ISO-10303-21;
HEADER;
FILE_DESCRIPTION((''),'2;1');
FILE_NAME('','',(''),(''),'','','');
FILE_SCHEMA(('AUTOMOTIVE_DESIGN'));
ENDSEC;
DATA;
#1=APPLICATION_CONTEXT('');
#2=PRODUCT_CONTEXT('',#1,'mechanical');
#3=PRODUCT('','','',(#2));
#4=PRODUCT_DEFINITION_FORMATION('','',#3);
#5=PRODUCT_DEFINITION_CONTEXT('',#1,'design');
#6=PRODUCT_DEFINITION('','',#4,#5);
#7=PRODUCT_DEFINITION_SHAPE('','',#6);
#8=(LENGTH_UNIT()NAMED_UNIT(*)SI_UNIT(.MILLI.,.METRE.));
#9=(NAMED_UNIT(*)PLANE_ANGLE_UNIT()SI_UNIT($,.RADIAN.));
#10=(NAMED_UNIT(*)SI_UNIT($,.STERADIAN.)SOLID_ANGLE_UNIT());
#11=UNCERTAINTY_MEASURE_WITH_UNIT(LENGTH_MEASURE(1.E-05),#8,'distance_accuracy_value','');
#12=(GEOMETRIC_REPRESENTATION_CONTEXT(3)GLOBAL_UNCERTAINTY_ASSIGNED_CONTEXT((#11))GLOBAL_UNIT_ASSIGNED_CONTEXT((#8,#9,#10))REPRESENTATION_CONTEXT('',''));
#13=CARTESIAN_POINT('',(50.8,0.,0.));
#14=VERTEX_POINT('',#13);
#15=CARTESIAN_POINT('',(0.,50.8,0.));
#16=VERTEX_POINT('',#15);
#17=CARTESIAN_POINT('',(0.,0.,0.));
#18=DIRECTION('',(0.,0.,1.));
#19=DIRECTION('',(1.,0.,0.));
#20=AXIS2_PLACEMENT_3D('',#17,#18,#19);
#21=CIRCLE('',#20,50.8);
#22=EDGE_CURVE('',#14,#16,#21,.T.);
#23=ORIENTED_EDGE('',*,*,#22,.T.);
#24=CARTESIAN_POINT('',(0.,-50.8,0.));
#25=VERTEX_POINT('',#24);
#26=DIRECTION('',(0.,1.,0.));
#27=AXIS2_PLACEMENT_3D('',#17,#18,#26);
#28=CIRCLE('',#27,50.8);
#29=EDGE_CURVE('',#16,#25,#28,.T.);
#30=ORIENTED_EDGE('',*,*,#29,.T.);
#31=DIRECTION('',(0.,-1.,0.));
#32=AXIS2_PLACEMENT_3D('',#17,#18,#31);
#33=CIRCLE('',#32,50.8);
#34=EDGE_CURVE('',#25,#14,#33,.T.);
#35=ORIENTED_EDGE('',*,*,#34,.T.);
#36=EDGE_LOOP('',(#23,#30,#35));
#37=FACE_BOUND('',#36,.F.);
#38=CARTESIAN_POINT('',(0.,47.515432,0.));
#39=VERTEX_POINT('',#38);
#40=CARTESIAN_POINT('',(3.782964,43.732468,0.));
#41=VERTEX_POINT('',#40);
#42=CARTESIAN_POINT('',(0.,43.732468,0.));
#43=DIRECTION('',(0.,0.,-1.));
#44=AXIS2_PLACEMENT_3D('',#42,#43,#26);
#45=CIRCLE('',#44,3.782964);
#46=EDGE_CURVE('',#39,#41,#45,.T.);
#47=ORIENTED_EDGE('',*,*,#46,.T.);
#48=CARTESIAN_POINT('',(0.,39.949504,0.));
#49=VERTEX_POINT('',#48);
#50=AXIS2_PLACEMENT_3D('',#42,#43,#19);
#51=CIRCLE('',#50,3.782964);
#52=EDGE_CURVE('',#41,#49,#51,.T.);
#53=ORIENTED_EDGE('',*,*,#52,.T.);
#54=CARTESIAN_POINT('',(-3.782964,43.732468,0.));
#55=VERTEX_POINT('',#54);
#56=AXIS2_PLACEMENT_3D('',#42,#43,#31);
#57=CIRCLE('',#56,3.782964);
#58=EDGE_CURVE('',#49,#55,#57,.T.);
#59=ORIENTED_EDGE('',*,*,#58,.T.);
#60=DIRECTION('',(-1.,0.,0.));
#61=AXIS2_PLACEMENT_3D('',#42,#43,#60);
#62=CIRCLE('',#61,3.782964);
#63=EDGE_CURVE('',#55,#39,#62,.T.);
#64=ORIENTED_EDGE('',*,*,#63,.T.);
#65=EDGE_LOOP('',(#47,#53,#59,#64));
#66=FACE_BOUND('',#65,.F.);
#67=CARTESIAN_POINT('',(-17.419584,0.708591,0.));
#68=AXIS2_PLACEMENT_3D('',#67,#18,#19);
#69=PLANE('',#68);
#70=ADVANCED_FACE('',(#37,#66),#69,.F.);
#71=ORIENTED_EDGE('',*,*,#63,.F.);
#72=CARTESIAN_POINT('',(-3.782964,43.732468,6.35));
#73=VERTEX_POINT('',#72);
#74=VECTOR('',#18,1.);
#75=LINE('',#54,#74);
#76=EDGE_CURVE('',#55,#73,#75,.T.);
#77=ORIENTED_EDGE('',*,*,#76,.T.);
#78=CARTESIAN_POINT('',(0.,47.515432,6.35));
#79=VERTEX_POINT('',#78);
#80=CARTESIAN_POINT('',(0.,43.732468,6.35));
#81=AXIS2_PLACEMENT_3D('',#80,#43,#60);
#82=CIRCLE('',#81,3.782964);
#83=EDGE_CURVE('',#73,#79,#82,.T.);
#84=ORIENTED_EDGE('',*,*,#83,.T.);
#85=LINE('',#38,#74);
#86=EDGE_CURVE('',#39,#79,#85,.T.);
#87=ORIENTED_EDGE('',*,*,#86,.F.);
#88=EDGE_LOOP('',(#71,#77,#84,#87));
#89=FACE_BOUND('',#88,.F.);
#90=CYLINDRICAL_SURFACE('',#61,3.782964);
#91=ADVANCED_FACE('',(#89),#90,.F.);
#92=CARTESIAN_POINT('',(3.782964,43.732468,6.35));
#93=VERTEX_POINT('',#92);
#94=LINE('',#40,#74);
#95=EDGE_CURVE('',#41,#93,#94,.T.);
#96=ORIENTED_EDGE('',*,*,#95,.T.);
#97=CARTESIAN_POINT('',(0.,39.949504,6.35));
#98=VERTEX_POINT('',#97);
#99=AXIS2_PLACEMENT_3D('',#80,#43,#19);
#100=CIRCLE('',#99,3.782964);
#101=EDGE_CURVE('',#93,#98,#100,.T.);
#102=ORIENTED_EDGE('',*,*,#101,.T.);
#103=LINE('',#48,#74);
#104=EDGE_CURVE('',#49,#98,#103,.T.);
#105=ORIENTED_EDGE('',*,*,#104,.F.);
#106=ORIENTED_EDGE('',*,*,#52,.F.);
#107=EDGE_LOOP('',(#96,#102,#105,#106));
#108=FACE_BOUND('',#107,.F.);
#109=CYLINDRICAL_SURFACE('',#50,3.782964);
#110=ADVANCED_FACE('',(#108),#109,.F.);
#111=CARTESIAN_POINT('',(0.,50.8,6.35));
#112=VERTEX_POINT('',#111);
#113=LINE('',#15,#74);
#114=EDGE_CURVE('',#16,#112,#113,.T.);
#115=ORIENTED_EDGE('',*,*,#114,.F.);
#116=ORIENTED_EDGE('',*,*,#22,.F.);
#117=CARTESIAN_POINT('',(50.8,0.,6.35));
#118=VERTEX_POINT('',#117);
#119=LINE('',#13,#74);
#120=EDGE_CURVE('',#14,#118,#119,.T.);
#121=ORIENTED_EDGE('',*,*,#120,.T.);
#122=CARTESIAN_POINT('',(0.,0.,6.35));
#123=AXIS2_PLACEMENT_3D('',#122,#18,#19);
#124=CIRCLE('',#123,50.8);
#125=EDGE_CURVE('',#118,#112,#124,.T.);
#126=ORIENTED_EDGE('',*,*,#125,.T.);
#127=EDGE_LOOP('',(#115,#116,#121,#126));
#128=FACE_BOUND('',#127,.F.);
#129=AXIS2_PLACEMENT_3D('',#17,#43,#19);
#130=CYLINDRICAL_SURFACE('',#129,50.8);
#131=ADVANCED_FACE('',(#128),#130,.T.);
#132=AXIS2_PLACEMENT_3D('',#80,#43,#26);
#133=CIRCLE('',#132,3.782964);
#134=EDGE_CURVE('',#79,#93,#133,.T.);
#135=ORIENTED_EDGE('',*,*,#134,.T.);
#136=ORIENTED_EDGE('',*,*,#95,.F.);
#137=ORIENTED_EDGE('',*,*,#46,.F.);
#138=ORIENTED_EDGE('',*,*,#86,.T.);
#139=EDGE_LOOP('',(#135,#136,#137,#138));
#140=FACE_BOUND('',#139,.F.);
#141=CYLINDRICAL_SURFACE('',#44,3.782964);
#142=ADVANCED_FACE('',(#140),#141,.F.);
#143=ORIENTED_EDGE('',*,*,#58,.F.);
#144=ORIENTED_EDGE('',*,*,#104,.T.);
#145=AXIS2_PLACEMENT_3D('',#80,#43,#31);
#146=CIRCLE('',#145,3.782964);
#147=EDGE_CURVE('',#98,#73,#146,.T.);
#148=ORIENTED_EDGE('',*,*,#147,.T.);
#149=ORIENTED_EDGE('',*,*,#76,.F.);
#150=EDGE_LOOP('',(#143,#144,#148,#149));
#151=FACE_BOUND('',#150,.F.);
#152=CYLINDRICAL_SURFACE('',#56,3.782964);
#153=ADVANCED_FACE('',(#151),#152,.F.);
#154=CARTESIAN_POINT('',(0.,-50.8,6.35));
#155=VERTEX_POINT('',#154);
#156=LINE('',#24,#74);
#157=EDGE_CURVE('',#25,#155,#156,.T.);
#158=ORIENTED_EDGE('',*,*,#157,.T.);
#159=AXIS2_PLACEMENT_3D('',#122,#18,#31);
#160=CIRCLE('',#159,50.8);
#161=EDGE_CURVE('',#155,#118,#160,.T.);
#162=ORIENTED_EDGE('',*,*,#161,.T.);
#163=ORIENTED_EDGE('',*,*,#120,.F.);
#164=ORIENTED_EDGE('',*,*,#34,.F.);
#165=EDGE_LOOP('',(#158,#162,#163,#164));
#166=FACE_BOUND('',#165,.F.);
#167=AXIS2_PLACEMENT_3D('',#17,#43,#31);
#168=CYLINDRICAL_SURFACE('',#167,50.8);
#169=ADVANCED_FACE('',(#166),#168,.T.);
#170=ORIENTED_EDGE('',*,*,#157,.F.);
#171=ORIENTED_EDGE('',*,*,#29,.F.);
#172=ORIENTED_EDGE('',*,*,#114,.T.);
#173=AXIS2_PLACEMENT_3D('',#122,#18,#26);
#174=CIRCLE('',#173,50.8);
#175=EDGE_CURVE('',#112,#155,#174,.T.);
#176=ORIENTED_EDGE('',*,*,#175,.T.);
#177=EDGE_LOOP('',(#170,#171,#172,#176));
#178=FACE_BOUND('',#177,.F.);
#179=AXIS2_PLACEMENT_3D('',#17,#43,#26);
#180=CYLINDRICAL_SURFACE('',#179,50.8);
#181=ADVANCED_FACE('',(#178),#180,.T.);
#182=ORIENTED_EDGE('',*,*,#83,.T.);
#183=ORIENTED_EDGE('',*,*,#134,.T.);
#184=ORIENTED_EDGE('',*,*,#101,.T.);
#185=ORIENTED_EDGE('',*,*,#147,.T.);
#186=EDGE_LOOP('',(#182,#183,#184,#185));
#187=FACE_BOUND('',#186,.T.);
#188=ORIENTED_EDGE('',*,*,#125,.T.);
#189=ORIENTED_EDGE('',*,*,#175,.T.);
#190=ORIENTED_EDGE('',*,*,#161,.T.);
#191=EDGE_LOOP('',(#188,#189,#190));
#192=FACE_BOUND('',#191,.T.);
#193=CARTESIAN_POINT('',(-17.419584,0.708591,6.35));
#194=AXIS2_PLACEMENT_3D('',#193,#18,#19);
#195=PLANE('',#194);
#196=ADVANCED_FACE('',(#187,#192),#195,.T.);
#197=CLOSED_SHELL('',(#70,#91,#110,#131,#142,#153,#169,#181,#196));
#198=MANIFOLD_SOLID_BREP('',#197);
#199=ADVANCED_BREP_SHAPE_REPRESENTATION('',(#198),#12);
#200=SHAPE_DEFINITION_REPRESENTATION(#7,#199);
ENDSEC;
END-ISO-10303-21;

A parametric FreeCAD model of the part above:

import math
import FreeCAD as App
import Part
import Sketcher
from FreeCAD import Vector
Q = App.Units.Quantity

doc = App.newDocument("Part")
params = doc.addObject("Spreadsheet::Sheet", "Params")
for row, (alias, value) in enumerate([
    ("sketch1_radius", "2 in"),
    ("pad1_length", "0.25 in"),
], start=1):
    params.set(f"A{row}", alias)
    params.set(f"B{row}", "=" + value)
    params.setAlias(f"B{row}", alias)

body = doc.addObject("PartDesign::Body", "Body")

sketch1 = body.newObject("Sketcher::SketchObject", "Sketch")
sketch1.AttachmentSupport = (doc.getObject("XY_Plane"), [""])
sketch1.MapMode = "FlatFace"
sketch1.addGeometry([
    Part.ArcOfCircle(Part.Circle(Vector(0, 0, 0), Vector(0, 0, 1), 50.8), math.radians(90), math.radians(270)),
    Part.ArcOfCircle(Part.Circle(Vector(0, 0, 0), Vector(0, 0, 1), 50.8), math.radians(-90), math.radians(0)),
    Part.ArcOfCircle(Part.Circle(Vector(0, 0, 0), Vector(0, 0, 1), 50.8), math.radians(0), math.radians(90)),
    Part.ArcOfCircle(Part.Circle(Vector(0, 43.7, 0), Vector(0, 0, 1), 3.8), math.radians(180), math.radians(270)),
    Part.ArcOfCircle(Part.Circle(Vector(0, 43.7, 0), Vector(0, 0, 1), 3.8), math.radians(90), math.radians(180)),
    Part.ArcOfCircle(Part.Circle(Vector(0, 43.7, 0), Vector(0, 0, 1), 3.8), math.radians(0), math.radians(90)),
    Part.ArcOfCircle(Part.Circle(Vector(0, 43.7, 0), Vector(0, 0, 1), 3.8), math.radians(-90), math.radians(0)),
], False)
sketch1.addConstraint([
    Sketcher.Constraint("Tangent", 0, 2, 1, 1),
    Sketcher.Constraint("Tangent", 1, 2, 2, 1),
    Sketcher.Constraint("Tangent", 2, 2, 0, 1),
    Sketcher.Constraint("Tangent", 3, 1, 4, 2),
    Sketcher.Constraint("Tangent", 4, 1, 5, 2),
    Sketcher.Constraint("Tangent", 5, 1, 6, 2),
    Sketcher.Constraint("Tangent", 6, 1, 3, 2),
    Sketcher.Constraint("Coincident", 0, 3, -1, 1),
    Sketcher.Constraint("Equal", 3, 4),
    Sketcher.Constraint("Symmetric", 3, 1, 5, 1, -2),
    Sketcher.Constraint("PointOnObject", 0, 2, -2),
    Sketcher.Constraint("PointOnObject", 1, 2, -1),
    Sketcher.Constraint("PointOnObject", 2, 2, -2),
    Sketcher.Constraint("PointOnObject", 4, 1, -2),
    Sketcher.Constraint("PointOnObject", 6, 1, -2),
    Sketcher.Constraint("Horizontal", 6, 3, 3, 1),
    Sketcher.Constraint("Radius", 0, Q("2 in")),
    Sketcher.Constraint("Radius", 3, Q("3.782964 mm")),
    Sketcher.Constraint("DistanceY", -1, 1, 3, 3, Q("43.732468 mm")),
])
sketch1.setExpression("Constraints[16]", "Params.sketch1_radius")
pad1 = body.newObject("PartDesign::Pad", "Pad")
pad1.Profile = sketch1
pad1.setExpression("Length", "Params.pad1_length")

doc.recompute()
